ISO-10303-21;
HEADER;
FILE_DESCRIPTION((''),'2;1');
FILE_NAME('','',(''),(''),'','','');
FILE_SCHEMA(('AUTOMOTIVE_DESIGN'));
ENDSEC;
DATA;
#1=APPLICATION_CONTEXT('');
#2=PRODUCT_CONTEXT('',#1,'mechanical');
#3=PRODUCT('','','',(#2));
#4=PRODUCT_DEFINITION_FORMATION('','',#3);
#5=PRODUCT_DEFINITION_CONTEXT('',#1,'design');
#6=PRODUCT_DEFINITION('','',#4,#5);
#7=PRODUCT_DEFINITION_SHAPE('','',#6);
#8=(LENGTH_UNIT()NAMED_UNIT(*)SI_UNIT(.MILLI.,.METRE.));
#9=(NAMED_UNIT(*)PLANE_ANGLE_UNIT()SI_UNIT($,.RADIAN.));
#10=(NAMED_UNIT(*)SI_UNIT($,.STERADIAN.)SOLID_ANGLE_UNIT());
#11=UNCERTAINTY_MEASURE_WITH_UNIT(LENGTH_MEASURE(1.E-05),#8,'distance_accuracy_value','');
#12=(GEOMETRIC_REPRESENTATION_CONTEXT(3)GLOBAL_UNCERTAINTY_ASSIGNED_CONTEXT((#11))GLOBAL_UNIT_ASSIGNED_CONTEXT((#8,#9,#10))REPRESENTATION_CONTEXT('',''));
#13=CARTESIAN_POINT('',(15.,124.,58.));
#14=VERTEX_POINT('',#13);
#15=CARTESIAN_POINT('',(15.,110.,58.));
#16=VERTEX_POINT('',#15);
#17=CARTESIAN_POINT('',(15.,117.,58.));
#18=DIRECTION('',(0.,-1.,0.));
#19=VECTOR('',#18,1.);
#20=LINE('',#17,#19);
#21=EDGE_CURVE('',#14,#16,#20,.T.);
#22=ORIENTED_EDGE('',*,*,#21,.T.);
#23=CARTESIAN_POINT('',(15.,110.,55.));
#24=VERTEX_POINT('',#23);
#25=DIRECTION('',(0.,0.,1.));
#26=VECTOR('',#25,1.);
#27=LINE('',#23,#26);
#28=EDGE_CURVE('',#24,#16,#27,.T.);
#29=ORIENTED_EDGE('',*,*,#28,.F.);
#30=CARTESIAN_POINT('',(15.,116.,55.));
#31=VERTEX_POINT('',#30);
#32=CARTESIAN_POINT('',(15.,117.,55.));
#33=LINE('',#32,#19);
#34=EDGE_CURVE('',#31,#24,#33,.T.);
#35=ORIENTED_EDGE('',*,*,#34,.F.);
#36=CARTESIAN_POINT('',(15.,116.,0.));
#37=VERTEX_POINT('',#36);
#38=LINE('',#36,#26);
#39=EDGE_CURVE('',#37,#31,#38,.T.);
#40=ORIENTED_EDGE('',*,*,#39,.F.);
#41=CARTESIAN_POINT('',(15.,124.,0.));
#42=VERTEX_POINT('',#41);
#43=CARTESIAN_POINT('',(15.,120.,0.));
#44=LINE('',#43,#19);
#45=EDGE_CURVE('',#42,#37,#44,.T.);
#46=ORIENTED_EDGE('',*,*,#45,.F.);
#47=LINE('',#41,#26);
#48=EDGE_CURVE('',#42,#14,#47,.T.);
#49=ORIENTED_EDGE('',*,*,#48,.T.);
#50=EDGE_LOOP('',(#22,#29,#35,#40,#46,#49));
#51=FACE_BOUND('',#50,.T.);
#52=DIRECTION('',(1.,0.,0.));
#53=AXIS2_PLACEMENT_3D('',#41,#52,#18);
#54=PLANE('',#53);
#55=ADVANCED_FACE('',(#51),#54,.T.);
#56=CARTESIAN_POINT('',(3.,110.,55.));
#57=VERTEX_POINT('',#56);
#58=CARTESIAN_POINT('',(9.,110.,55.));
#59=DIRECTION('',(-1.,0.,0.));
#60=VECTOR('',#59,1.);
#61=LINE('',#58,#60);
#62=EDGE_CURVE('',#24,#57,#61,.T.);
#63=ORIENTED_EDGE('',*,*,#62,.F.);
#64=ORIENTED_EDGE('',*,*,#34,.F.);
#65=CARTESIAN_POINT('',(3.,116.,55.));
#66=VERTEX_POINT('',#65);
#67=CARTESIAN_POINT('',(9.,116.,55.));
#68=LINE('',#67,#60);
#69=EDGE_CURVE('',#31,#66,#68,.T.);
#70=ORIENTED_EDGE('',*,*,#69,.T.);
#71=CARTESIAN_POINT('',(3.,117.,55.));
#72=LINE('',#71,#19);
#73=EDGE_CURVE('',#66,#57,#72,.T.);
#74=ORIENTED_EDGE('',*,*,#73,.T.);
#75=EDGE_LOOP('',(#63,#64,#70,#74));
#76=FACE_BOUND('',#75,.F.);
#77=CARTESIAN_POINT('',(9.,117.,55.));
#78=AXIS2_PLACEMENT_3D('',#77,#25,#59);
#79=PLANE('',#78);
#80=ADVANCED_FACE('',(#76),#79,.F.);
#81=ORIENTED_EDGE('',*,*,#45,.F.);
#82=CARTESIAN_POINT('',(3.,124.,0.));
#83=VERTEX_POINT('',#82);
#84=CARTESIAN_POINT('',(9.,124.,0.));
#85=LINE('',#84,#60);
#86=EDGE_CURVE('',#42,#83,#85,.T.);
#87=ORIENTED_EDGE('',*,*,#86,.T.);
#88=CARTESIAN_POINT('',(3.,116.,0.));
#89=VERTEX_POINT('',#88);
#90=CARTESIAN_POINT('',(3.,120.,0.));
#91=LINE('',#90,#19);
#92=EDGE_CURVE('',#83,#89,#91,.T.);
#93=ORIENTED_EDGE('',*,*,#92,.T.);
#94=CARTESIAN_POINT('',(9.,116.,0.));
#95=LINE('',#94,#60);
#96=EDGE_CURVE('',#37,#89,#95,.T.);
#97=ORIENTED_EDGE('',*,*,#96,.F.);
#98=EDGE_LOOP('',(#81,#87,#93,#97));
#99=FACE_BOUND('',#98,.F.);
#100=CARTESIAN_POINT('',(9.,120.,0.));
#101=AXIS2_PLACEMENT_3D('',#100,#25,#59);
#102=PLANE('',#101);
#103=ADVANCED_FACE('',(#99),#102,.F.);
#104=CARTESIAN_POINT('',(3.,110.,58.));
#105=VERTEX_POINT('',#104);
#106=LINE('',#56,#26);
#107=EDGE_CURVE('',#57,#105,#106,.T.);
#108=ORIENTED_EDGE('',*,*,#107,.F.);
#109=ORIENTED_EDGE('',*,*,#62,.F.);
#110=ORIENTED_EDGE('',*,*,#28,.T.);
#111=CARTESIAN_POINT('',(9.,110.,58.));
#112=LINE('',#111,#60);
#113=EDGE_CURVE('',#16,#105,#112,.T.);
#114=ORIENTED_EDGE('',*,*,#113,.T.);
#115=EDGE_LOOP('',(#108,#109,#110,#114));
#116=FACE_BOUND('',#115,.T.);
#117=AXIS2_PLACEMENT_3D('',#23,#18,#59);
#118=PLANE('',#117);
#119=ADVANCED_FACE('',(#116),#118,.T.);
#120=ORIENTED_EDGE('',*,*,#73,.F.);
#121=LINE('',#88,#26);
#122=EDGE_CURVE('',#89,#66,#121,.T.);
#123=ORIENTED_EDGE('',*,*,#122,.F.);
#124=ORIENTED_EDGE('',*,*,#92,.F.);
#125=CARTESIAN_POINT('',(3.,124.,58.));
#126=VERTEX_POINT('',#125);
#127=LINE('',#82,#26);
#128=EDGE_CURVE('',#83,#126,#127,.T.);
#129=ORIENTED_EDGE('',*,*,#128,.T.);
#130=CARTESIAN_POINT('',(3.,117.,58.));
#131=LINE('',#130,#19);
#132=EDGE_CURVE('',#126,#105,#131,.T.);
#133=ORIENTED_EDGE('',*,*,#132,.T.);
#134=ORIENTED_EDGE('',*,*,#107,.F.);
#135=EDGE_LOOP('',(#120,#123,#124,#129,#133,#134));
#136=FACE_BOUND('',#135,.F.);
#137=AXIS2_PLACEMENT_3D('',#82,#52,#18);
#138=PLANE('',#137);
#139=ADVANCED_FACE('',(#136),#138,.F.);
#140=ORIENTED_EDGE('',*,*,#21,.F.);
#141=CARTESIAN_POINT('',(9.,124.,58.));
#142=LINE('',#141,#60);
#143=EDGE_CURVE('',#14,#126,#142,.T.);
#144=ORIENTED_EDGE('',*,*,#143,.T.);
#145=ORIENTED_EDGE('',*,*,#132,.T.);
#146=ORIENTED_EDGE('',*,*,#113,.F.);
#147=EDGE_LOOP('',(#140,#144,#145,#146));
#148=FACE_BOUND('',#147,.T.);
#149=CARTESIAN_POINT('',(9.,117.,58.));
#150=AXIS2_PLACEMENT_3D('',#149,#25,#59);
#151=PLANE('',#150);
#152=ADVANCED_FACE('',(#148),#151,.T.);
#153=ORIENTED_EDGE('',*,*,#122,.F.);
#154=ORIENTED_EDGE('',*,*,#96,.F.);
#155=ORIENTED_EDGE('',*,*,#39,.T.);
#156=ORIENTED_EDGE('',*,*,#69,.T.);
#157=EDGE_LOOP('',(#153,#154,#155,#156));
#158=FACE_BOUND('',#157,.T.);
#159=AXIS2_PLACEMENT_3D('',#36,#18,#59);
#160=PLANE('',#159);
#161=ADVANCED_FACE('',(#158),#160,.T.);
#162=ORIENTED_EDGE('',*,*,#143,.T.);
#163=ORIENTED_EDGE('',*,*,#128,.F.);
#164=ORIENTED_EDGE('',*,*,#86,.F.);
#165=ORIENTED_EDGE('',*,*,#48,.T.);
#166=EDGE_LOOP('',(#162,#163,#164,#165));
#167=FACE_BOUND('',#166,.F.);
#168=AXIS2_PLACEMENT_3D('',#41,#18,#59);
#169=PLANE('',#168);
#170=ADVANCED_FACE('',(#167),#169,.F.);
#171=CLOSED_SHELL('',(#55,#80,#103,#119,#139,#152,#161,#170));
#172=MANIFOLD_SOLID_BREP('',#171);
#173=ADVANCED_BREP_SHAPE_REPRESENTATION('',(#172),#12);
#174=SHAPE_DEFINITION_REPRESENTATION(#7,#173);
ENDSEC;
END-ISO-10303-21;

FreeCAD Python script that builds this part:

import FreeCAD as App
import Part
import Sketcher
from FreeCAD import Vector
Q = App.Units.Quantity


def add_polygon(sketch, points):
    """Adds a closed chain of lines whose ends are joined by coincident constraints."""
    first, n = sketch.GeometryCount, len(points)
    for a, b in zip(points, points[1:] + points[:1]):
        sketch.addGeometry(Part.LineSegment(App.Vector(*a, 0), App.Vector(*b, 0)), False)
    for i in range(n):
        sketch.addConstraint(Sketcher.Constraint("Coincident", first + i, 2, first + (i + 1) % n, 1))

doc = App.newDocument("Part")
params = doc.addObject("Spreadsheet::Sheet", "Params")
for row, (alias, value) in enumerate([
    ("sketch1_width", "12 mm"),
    ("sketch1_height", "8 mm"),
    ("pad1_length", "55 mm"),
    ("sketch2_width", "12 mm"),
    ("sketch2_height", "14 mm"),
    ("pad2_length", "3 mm"),
], start=1):
    params.set(f"A{row}", alias)
    params.set(f"B{row}", "=" + value)
    params.setAlias(f"B{row}", alias)

body = doc.addObject("PartDesign::Body", "Body")

# Sketch on XY plane
sketch1 = body.newObject("Sketcher::SketchObject", "Sketch")
sketch1.AttachmentSupport = (doc.getObject("XY_Plane"), [""])
sketch1.MapMode = "FlatFace"
add_polygon(sketch1, [(47, 25), (47, 17), (59, 17), (59, 25)])  # lines 0-3
sketch1.addConstraint([
    Sketcher.Constraint("Vertical", 0),
    Sketcher.Constraint("Horizontal", 1),
    Sketcher.Constraint("Vertical", 2),
    Sketcher.Constraint("Horizontal", 3),
    Sketcher.Constraint("DistanceX", 1, 1, 1, 2, Q("12 mm")),
    Sketcher.Constraint("DistanceY", 0, 2, 0, 1, Q("8 mm")),
    Sketcher.Constraint("DistanceX", -1, 1, 0, 2, Q("47 mm")),
    Sketcher.Constraint("DistanceY", -1, 1, 0, 2, Q("17 mm")),
])
sketch1.setExpression("Constraints[8]", "Params.sketch1_width")
sketch1.setExpression("Constraints[9]", "Params.sketch1_height")
pad1 = body.newObject("PartDesign::Pad", "Pad")
pad1.Profile = sketch1
pad1.setExpression("Length", "Params.pad1_length")
body2 = doc.addObject("PartDesign::Body", "Body001")

# Sketch on XY plane
sketch2 = body2.newObject("Sketcher::SketchObject", "Sketch001")
sketch2.AttachmentSupport = (doc.getObject("XY_Plane001"), [""])
sketch2.MapMode = "FlatFace"
sketch2.AttachmentOffset = App.Placement(Vector(0, 0, 55), App.Rotation())
add_polygon(sketch2, [(47, 31), (47, 17), (59, 17), (59, 31)])  # lines 0-3
sketch2.addConstraint([
    Sketcher.Constraint("Vertical", 0),
    Sketcher.Constraint("Horizontal", 1),
    Sketcher.Constraint("Vertical", 2),
    Sketcher.Constraint("Horizontal", 3),
    Sketcher.Constraint("DistanceX", 1, 1, 1, 2, Q("12 mm")),
    Sketcher.Constraint("DistanceY", 0, 2, 0, 1, Q("14 mm")),
    Sketcher.Constraint("DistanceX", -1, 1, 0, 2, Q("47 mm")),
    Sketcher.Constraint("DistanceY", -1, 1, 0, 2, Q("17 mm")),
])
sketch2.setExpression("Constraints[8]", "Params.sketch2_width")
sketch2.setExpression("Constraints[9]", "Params.sketch2_height")
pad2 = body2.newObject("PartDesign::Pad", "Pad001")
pad2.Profile = sketch2
pad2.setExpression("Length", "Params.pad2_length")
doc.recompute()

boolean = body2.newObject("PartDesign::Boolean", "Boolean")
boolean.Type = "Fuse"
boolean.addObjects([body])
body3 = doc.addObject("PartDesign::Body", "Body002")
doc.recompute()

body2.Placement = App.Placement(Vector(62, 141, 0), App.Rotation(Vector(0, 0, 1), 180))
boolean2 = body3.newObject("PartDesign::Boolean", "Boolean001")
boolean2.Type = "Fuse"
boolean2.addObjects([body2])

doc.recompute()
